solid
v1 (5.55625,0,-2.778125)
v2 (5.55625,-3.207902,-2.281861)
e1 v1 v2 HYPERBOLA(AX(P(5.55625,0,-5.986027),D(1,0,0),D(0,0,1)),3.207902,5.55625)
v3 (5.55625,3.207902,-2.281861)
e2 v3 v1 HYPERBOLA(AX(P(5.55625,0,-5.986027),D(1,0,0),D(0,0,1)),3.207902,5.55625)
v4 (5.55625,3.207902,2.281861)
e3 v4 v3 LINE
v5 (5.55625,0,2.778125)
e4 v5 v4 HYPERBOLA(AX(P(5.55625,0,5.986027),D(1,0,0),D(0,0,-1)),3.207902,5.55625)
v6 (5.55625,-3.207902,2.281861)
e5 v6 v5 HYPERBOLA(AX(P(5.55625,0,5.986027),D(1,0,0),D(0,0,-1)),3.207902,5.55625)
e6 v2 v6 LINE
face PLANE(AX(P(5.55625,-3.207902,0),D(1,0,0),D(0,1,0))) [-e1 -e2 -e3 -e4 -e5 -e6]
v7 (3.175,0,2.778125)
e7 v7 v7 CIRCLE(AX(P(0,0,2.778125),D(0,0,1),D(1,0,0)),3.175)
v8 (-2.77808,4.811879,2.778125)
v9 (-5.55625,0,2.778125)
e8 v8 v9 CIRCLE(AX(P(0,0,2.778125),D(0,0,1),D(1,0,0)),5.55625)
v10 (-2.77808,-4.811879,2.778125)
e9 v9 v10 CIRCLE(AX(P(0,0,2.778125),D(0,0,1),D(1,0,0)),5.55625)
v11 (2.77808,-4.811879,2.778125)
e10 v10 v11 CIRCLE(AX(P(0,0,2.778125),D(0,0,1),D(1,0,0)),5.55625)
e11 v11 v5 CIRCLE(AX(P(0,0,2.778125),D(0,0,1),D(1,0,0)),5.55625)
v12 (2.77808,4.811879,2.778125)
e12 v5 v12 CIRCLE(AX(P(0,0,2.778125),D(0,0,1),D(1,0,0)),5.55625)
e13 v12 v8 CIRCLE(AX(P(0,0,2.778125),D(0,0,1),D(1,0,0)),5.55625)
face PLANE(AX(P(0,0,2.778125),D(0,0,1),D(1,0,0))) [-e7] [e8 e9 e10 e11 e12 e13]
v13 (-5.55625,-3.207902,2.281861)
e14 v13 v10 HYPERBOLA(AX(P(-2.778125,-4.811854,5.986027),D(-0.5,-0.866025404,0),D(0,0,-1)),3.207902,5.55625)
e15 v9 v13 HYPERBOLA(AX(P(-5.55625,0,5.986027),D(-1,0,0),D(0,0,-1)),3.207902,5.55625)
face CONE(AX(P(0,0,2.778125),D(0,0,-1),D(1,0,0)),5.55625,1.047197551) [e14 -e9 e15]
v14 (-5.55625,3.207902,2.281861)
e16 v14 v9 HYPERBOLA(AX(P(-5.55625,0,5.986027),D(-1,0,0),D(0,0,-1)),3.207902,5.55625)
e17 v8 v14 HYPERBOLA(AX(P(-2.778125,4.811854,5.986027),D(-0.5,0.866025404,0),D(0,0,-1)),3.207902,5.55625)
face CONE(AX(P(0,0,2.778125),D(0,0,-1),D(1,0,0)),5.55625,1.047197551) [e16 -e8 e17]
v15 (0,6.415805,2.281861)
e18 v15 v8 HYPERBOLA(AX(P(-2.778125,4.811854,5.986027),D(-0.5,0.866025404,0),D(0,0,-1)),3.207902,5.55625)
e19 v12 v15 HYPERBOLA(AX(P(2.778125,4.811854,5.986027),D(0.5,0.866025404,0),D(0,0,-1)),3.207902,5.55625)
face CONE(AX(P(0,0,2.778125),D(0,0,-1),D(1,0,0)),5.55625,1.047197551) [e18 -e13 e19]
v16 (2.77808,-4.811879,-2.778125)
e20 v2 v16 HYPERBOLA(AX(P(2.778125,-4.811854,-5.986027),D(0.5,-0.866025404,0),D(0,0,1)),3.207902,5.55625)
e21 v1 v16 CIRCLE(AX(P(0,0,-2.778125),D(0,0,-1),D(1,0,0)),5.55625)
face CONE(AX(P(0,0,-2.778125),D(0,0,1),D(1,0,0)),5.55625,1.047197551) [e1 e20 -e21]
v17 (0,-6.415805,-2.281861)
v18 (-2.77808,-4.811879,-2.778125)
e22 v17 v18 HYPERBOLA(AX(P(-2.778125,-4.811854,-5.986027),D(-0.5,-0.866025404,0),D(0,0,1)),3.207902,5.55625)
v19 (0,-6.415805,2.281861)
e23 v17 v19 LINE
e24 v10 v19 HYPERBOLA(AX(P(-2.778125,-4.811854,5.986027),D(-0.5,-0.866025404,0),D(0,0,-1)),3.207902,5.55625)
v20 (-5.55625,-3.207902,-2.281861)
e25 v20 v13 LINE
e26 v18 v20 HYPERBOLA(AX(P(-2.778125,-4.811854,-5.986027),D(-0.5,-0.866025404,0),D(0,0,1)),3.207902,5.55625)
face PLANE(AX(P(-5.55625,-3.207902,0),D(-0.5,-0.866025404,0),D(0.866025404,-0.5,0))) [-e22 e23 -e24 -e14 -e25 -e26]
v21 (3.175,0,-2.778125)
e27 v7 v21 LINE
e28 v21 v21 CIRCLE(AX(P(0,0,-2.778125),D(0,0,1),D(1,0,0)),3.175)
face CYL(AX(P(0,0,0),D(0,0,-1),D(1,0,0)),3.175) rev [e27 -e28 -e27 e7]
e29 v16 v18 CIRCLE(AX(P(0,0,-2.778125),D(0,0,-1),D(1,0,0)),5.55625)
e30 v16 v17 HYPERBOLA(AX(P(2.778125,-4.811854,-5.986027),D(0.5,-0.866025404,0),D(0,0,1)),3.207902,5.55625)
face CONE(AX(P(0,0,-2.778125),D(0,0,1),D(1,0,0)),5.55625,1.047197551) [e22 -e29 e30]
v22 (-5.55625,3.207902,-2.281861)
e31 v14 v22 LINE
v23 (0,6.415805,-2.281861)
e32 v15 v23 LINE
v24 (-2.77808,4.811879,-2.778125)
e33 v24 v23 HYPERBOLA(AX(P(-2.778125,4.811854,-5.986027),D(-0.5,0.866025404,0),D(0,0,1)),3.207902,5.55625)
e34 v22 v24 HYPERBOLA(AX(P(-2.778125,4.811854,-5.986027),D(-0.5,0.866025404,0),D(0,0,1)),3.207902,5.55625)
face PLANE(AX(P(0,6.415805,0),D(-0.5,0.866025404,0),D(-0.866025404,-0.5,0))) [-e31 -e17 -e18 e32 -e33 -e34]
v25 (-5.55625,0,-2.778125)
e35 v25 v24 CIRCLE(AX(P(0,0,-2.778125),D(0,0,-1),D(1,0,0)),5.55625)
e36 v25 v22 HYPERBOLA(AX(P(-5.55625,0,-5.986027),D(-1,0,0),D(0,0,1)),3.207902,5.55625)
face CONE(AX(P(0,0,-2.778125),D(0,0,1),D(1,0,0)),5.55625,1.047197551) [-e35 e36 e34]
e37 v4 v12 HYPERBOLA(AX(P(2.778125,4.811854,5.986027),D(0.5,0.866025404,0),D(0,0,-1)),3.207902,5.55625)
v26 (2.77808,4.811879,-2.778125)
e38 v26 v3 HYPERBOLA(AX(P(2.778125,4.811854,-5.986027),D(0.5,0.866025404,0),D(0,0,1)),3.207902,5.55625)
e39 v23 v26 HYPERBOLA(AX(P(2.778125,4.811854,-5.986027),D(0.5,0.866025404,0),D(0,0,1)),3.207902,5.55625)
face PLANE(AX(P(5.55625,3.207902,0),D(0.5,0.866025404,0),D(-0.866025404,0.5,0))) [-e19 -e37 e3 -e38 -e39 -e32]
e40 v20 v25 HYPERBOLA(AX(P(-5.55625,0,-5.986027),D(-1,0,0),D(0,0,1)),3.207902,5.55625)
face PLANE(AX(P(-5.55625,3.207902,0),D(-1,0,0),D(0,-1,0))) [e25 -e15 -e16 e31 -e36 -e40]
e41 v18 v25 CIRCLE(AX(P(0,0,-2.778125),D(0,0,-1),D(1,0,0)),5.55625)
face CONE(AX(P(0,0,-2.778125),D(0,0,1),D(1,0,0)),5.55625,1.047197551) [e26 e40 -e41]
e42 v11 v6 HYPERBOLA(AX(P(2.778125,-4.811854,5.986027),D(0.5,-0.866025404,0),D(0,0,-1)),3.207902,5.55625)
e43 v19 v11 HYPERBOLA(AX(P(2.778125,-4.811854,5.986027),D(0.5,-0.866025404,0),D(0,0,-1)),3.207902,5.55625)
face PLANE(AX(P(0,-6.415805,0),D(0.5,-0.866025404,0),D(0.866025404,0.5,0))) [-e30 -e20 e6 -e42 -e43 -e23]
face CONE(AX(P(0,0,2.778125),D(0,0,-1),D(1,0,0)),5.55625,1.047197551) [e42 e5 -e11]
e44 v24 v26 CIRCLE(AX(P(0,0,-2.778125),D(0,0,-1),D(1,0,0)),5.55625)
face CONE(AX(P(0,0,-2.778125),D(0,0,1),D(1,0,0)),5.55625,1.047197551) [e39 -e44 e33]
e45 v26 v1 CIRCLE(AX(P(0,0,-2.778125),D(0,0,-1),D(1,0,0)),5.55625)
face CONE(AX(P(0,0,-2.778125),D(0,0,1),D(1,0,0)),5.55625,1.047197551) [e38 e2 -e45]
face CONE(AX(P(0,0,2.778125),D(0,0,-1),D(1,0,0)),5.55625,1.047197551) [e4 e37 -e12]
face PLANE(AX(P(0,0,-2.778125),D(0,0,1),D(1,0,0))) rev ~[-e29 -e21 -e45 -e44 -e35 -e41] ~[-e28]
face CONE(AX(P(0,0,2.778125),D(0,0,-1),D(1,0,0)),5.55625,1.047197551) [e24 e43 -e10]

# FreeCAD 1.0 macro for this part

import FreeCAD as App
import Part
import Sketcher

V = App.Vector
Q = App.Units.Quantity


def faces_at(feature, points):
    """Names of the faces that lie closest to the given points."""
    faces = feature.Shape.Faces
    near = lambda p: min(range(len(faces)), key=lambda i: faces[i].distToShape(Part.Vertex(*p))[0])
    return sorted({f"Face{near(p) + 1}" for p in points})


def add_polygon(sketch, points):
    """Adds a closed chain of lines whose ends are joined by coincident constraints."""
    first, n = sketch.GeometryCount, len(points)
    for a, b in zip(points, points[1:] + points[:1]):
        sketch.addGeometry(Part.LineSegment(App.Vector(*a, 0), App.Vector(*b, 0)), False)
    for i in range(n):
        sketch.addConstraint(Sketcher.Constraint("Coincident", first + i, 2, first + (i + 1) % n, 1))

doc = App.newDocument("Part")
body = doc.addObject("PartDesign::Body", "Body")

# Sketch on XY plane
sketch1 = body.newObject("Sketcher::SketchObject", "Sketch")
sketch1.AttachmentSupport = (doc.getObject("XY_Plane"), [""])
sketch1.MapMode = "FlatFace"
add_polygon(sketch1, [(-5.6, 3.2), (-5.6, -3.2), (0, -6.4), (5.6, -3.2), (5.6, 3.2), (0, 6.4)])  # lines 0-5
sketch1.addGeometry(Part.Circle(V(0, 0, 0), V(0, 0, 1), 3.2), False)  # 6
sketch1.addConstraint(Sketcher.Constraint("Vertical", 0))
sketch1.addConstraint(Sketcher.Constraint("Vertical", 3))
sketch1.addConstraint(Sketcher.Constraint("Coincident", 6, 3, -1, 1))
sketch1.addConstraint(Sketcher.Constraint("Symmetric", 0, 2, 3, 2, -1, 1))
sketch1.addConstraint(Sketcher.Constraint("Symmetric", 1, 2, 4, 2, -1, 1))
sketch1.addConstraint(Sketcher.Constraint("PointOnObject", 1, 2, -2))
sketch1.addConstraint(Sketcher.Constraint("Parallel", 2, 5))
sketch1.addConstraint(Sketcher.Constraint("Horizontal", 0, 2, 2, 2))
sketch1.addConstraint(Sketcher.Constraint("Diameter", 6, Q("0.25 in")))
sketch1.addConstraint(Sketcher.Constraint("Angle", 1, Q("-30 deg")))
sketch1.addConstraint(Sketcher.Constraint("DistanceX", 0, 2, -1, 1, Q("0.21875 in")))
sketch1.addConstraint(Sketcher.Constraint("DistanceY", 0, 2, 0, 1, 6.415805))
pad1 = body.newObject("PartDesign::Pad", "Pad")
pad1.Profile = sketch1
pad1.Length = Q("0.21875 in")
pad1.Midplane = True
body2 = doc.addObject("PartDesign::Body", "Body001")

# Sketch on XY plane
sketch2 = body2.newObject("Sketcher::SketchObject", "Sketch001")
sketch2.AttachmentSupport = (doc.getObject("XY_Plane001"), [""])
sketch2.MapMode = "FlatFace"
sketch2.AttachmentOffset = App.Placement(V(0, 0, 0.109375 * 25.4), App.Rotation())
add_polygon(sketch2, [(-52, 53), (-52, -53), (52, -53), (52, 53)])  # lines 0-3
sketch2.addGeometry(Part.Circle(V(0, 0, 0), V(0, 0, 1), 6), False)  # 4
sketch2.addConstraint(Sketcher.Constraint("Vertical", 0))
sketch2.addConstraint(Sketcher.Constraint("Horizontal", 1))
sketch2.addConstraint(Sketcher.Constraint("Vertical", 2))
sketch2.addConstraint(Sketcher.Constraint("Horizontal", 3))
sketch2.addConstraint(Sketcher.Constraint("Coincident", 4, 3, -1, 1))
sketch2.addConstraint(Sketcher.Constraint("Symmetric", 0, 2, 2, 2, -1, 1))
sketch2.addConstraint(Sketcher.Constraint("Diameter", 4, Q("0.4375 in")))
sketch2.addConstraint(Sketcher.Constraint("DistanceX", 1, 1, 1, 2, 104.672))
sketch2.addConstraint(Sketcher.Constraint("DistanceY", 0, 2, 0, 1, 106.392))
pad2 = body2.newObject("PartDesign::Pad", "Pad001")
pad2.Profile = sketch2
pad2.Length = Q("1 in")
pad2.Reversed = True
doc.recompute()

datumplane = body2.newObject("PartDesign::Plane", "DatumPlane")
datumplane.AttachmentSupport = (doc.getObject("XY_Plane001"), [""])
datumplane.MapMode = "FlatFace"
datumplane.AttachmentOffset = App.Placement(V(0, 0, 0.109375 * 25.4), App.Rotation())
draft = body2.newObject("PartDesign::Draft", "Draft")
draft.Base = (pad2, faces_at(pad2, [
    (0, -53.196, -9.922),
    (52.336, 0, -9.922),
    (0, 53.196, -9.922),
    (-52.336, 0, -9.922),
    (-5.556, 0, -9.922),
]))
draft.NeutralPlane = (datumplane, [""])
draft.Angle = 60
draft.Reversed = True
doc.recompute()

boolean = body.newObject("PartDesign::Boolean", "Boolean")
boolean.Type = "Cut"
boolean.addObjects([body2])
body3 = doc.addObject("PartDesign::Body", "Body002")

# Sketch on XY plane
sketch3 = body3.newObject("Sketcher::SketchObject", "Sketch002")
sketch3.AttachmentSupport = (doc.getObject("XY_Plane002"), [""])
sketch3.MapMode = "FlatFace"
sketch3.AttachmentOffset = App.Placement(V(0, 0, -0.109375 * 25.4), App.Rotation())
add_polygon(sketch3, [(-52, -53), (-52, 53), (52, 53), (52, -53)])  # lines 0-3
sketch3.addGeometry(Part.Circle(V(0, 0, 0), V(0, 0, 1), 6), False)  # 4
sketch3.addConstraint(Sketcher.Constraint("Vertical", 0))
sketch3.addConstraint(Sketcher.Constraint("Horizontal", 1))
sketch3.addConstraint(Sketcher.Constraint("Vertical", 2))
sketch3.addConstraint(Sketcher.Constraint("Horizontal", 3))
sketch3.addConstraint(Sketcher.Constraint("Coincident", 4, 3, -1, 1))
sketch3.addConstraint(Sketcher.Constraint("Symmetric", 0, 2, 2, 2, -1, 1))
sketch3.addConstraint(Sketcher.Constraint("Diameter", 4, Q("0.4375 in")))
sketch3.addConstraint(Sketcher.Constraint("DistanceX", 1, 1, 1, 2, 104.672))
sketch3.addConstraint(Sketcher.Constraint("DistanceY", 0, 1, 0, 2, 106.392))
pad3 = body3.newObject("PartDesign::Pad", "Pad002")
pad3.Profile = sketch3
pad3.Length = Q("1 in")
doc.recompute()

datumplane2 = body3.newObject("PartDesign::Plane", "DatumPlane001")
datumplane2.AttachmentSupport = (doc.getObject("XY_Plane002"), [""])
datumplane2.MapMode = "FlatFace"
datumplane2.AttachmentOffset = App.Placement(V(0, 0, -0.109375 * 25.4), App.Rotation())
draft2 = body3.newObject("PartDesign::Draft", "Draft001")
draft2.Base = (pad3, faces_at(pad3, [
    (0, -53.196, 9.922),
    (52.336, 0, 9.922),
    (0, 53.196, 9.922),
    (-52.336, 0, 9.922),
    (-5.556, 0, 9.922),
]))
draft2.NeutralPlane = (datumplane2, [""])
draft2.Angle = 60
draft2.Reversed = False
doc.recompute()

boolean2 = body.newObject("PartDesign::Boolean", "Boolean001")
boolean2.Type = "Cut"
boolean2.addObjects([body3])

doc.recompute()
